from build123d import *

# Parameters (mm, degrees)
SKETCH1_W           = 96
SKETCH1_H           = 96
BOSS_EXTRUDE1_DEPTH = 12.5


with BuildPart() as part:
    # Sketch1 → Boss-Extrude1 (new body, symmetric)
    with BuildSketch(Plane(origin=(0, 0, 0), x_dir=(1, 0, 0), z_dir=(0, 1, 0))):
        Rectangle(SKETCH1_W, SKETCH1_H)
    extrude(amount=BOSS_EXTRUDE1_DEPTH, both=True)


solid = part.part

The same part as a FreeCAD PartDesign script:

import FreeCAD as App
import Part
import Sketcher

V = App.Vector

doc = App.newDocument("Part")
body = doc.addObject("PartDesign::Body", "Body")

# Sketch on XZ plane
sketch1 = body.newObject("Sketcher::SketchObject", "Sketch")
sketch1.AttachmentSupport = (doc.getObject("XZ_Plane"), [""])
sketch1.MapMode = "FlatFace"
sketch1.addGeometry([
    Part.LineSegment(V(-48, -48, 0), V(-48, 48, 0)),
    Part.LineSegment(V(-48, 48, 0), V(48, 48, 0)),
    Part.LineSegment(V(48, 48, 0), V(48, -48, 0)),
    Part.LineSegment(V(48, -48, 0), V(-48, -48, 0)),
], False)
sketch1.addConstraint([
    Sketcher.Constraint("Coincident", 0, 2, 1, 1),
    Sketcher.Constraint("Coincident", 1, 2, 2, 1),
    Sketcher.Constraint("Coincident", 2, 2, 3, 1),
    Sketcher.Constraint("Coincident", 3, 2, 0, 1),
    Sketcher.Constraint("Vertical", 0),
    Sketcher.Constraint("Horizontal", 1),
    Sketcher.Constraint("Vertical", 2),
    Sketcher.Constraint("Horizontal", 3),
    Sketcher.Constraint("Symmetric", 0, 2, 2, 2, -1, 1),
    Sketcher.Constraint("Equal", 3, 0),
    Sketcher.Constraint("DistanceX", 1, 1, 1, 2, 96.0),
])
pad1 = body.newObject("PartDesign::Pad", "Pad")
pad1.Profile = sketch1
pad1.Length = 25
pad1.Midplane = True

doc.recompute()
